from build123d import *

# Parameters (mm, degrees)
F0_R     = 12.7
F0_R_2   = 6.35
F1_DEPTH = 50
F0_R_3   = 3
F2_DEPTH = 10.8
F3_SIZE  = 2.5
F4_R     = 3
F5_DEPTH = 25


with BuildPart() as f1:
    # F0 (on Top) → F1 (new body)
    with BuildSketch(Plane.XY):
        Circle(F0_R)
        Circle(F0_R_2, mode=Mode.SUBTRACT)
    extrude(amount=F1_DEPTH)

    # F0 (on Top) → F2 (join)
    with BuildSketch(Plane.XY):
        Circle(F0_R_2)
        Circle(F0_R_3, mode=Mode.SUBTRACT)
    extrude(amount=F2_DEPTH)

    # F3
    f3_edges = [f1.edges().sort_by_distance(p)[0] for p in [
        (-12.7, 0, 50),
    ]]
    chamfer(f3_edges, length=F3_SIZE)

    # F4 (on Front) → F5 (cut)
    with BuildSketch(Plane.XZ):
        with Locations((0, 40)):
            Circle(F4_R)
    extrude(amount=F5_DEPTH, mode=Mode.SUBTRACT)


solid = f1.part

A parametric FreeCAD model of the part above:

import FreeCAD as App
import Part
import Sketcher
from FreeCAD import Vector
Q = App.Units.Quantity


def edges_at(feature, points):
    """Names of the edges that pass closest to the given points."""
    edges = feature.Shape.Edges
    near = lambda p: min(range(len(edges)), key=lambda i: edges[i].distToShape(Part.Vertex(*p))[0])
    return sorted({f"Edge{near(p) + 1}" for p in points})

doc = App.newDocument("Part")
body = doc.addObject("PartDesign::Body", "Body")

# Sketch on XY plane
sketch1 = body.newObject("Sketcher::SketchObject", "Sketch")
sketch1.AttachmentSupport = (doc.getObject("XY_Plane"), [""])
sketch1.MapMode = "FlatFace"
sketch1.addGeometry([
    Part.Circle(Vector(0, 0, 0), Vector(0, 0, 1), 13),
    Part.Circle(Vector(0, 0, 0), Vector(0, 0, 1), 6),
], False)
sketch1.addConstraint([
    Sketcher.Constraint("Coincident", 0, 3, -1, 1),
    Sketcher.Constraint("Coincident", 1, 3, -1, 1),
    Sketcher.Constraint("Diameter", 0, Q("25.4 mm")),
    Sketcher.Constraint("Diameter", 1, Q("12.7 mm")),
])
pad1 = body.newObject("PartDesign::Pad", "Pad")
pad1.Profile = sketch1
pad1.Length = 50

# Sketch on XY plane
sketch2 = body.newObject("Sketcher::SketchObject", "Sketch001")
sketch2.AttachmentSupport = (doc.getObject("XY_Plane"), [""])
sketch2.MapMode = "FlatFace"
sketch2.addGeometry([
    Part.Circle(Vector(0, 0, 0), Vector(0, 0, 1), 6.3),
    Part.Circle(Vector(0, 0, 0), Vector(0, 0, 1), 3),
], False)
sketch2.addConstraint([
    Sketcher.Constraint("Coincident", 0, 3, -1, 1),
    Sketcher.Constraint("Coincident", 1, 3, -1, 1),
    Sketcher.Constraint("Diameter", 1, Q("6 mm")),
    Sketcher.Constraint("Diameter", 0, Q("12.7 mm")),
])
pad2 = body.newObject("PartDesign::Pad", "Pad001")
pad2.Profile = sketch2
pad2.Length = 10.8
doc.recompute()

chamfer = body.newObject("PartDesign::Chamfer", "Chamfer")
chamfer.Base = (pad2, edges_at(pad2, [(-12.7, 0, 50)]))
chamfer.Size = 2.5

# Sketch on XZ plane
sketch3 = body.newObject("Sketcher::SketchObject", "Sketch002")
sketch3.AttachmentSupport = (doc.getObject("XZ_Plane"), [""])
sketch3.MapMode = "FlatFace"
sketch3.addGeometry(Part.Circle(Vector(0, 40, 0), Vector(0, 0, 1), 3), False)
sketch3.addConstraint([
    Sketcher.Constraint("PointOnObject", 0, 3, -2),
    Sketcher.Constraint("Diameter", 0, Q("6 mm")),
    Sketcher.Constraint("DistanceY", -1, 1, 0, 3, Q("40 mm")),
])
pocket1 = body.newObject("PartDesign::Pocket", "Pocket")
pocket1.Profile = sketch3
pocket1.Length = 25
pocket1.Reversed = True

doc.recompute()
